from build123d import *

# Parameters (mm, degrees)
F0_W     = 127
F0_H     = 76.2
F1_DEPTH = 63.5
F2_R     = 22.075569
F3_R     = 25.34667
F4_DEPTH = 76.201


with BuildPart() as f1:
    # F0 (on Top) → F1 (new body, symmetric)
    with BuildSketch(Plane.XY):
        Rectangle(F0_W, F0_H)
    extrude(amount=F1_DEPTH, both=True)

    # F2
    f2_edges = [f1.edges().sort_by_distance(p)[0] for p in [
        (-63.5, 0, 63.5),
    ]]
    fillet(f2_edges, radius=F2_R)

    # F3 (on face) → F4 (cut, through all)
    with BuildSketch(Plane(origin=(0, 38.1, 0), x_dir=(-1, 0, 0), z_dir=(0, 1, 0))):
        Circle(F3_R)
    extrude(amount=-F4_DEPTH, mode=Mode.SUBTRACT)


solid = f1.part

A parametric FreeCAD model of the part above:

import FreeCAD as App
import Part
import Sketcher
Q = App.Units.Quantity


def edges_at(feature, points):
    """Names of the edges that pass closest to the given points."""
    edges = feature.Shape.Edges
    near = lambda p: min(range(len(edges)), key=lambda i: edges[i].distToShape(Part.Vertex(*p))[0])
    return sorted({f"Edge{near(p) + 1}" for p in points})

doc = App.newDocument("Part")
body = doc.addObject("PartDesign::Body", "Body")

sketch1 = doc.addObject("Sketcher::SketchObject", "Sketch")
body.addObject(sketch1)
sketch1.AttachmentSupport = (doc.XY_Plane, [""])
sketch1.MapMode = "FlatFace"
sketch1.addGeometry([
    Part.LineSegment(App.Vector(-64, 38, 0), App.Vector(-64, -38, 0)),
    Part.LineSegment(App.Vector(-64, -38, 0), App.Vector(64, -38, 0)),
    Part.LineSegment(App.Vector(64, -38, 0), App.Vector(64, 38, 0)),
    Part.LineSegment(App.Vector(64, 38, 0), App.Vector(-64, 38, 0)),
], False)
sketch1.addConstraint([
    Sketcher.Constraint("Coincident", 0, 2, 1, 1),
    Sketcher.Constraint("Coincident", 1, 2, 2, 1),
    Sketcher.Constraint("Coincident", 2, 2, 3, 1),
    Sketcher.Constraint("Coincident", 3, 2, 0, 1),
    Sketcher.Constraint("Vertical", 0),
    Sketcher.Constraint("Horizontal", 1),
    Sketcher.Constraint("Vertical", 2),
    Sketcher.Constraint("Horizontal", 3),
    Sketcher.Constraint("Symmetric", 0, 2, 2, 2, -1, 1),
    Sketcher.Constraint("DistanceX", 1, 1, 1, 2, Q("5 in")),
    Sketcher.Constraint("DistanceY", 0, 2, 0, 1, Q("3 in")),
])
pad1 = doc.addObject("PartDesign::Pad", "Pad")
body.addObject(pad1)
pad1.Profile = sketch1
pad1.Length = Q("5 in")
pad1.Midplane = True
doc.recompute()

fillet = doc.addObject("PartDesign::Fillet", "Fillet")
body.addObject(fillet)
fillet.Base = (pad1, edges_at(pad1, [(-63.5, 0, 63.5)]))
fillet.Radius = 22.075569

sketch2 = doc.addObject("Sketcher::SketchObject", "Sketch001")
body.addObject(sketch2)
sketch2.AttachmentSupport = (doc.XZ_Plane, [""])
sketch2.MapMode = "FlatFace"
sketch2.AttachmentOffset = App.Placement(App.Vector(0, 0, -1.5 * 25.4), App.Rotation())
sketch2.addGeometry(Part.Circle(App.Vector(0, 0, 0), App.Vector(0, 0, 1), 25), False)
sketch2.addConstraint([
    Sketcher.Constraint("Coincident", 0, 3, -1, 1),
    Sketcher.Constraint("Diameter", 0, 50.69334),
])
pocket1 = doc.addObject("PartDesign::Pocket", "Pocket")
body.addObject(pocket1)
pocket1.Profile = sketch2
pocket1.Type = "ThroughAll"
pocket1.Reversed = True

doc.recompute()
